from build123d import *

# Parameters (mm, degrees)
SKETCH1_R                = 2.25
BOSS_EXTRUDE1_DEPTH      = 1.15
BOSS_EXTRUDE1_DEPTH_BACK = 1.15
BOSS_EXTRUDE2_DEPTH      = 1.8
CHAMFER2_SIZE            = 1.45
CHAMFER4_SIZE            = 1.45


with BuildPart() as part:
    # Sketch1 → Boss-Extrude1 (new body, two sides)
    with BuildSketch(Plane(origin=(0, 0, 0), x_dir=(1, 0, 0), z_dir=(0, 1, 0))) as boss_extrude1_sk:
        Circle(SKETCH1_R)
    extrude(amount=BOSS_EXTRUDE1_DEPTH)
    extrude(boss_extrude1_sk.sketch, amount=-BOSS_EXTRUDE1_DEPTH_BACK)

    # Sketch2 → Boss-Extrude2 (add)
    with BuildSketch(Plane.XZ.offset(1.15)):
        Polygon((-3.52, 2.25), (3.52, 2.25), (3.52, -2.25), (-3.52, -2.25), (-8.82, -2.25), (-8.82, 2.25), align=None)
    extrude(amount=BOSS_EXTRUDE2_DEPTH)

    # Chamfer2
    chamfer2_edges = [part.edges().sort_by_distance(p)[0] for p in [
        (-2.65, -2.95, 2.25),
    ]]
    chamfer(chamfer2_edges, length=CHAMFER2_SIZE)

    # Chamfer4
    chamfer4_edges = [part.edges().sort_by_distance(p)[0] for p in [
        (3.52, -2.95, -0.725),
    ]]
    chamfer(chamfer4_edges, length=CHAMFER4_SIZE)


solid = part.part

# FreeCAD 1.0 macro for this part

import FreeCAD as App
import Part
import Sketcher
Q = App.Units.Quantity


def edges_at(feature, points):
    """Names of the edges that pass closest to the given points."""
    edges = feature.Shape.Edges
    near = lambda p: min(range(len(edges)), key=lambda i: edges[i].distToShape(Part.Vertex(*p))[0])
    return sorted({f"Edge{near(p) + 1}" for p in points})


def add_polygon(sketch, points):
    """Adds a closed chain of lines whose ends are joined by coincident constraints."""
    first, n = sketch.GeometryCount, len(points)
    for a, b in zip(points, points[1:] + points[:1]):
        sketch.addGeometry(Part.LineSegment(App.Vector(*a, 0), App.Vector(*b, 0)), False)
    for i in range(n):
        sketch.addConstraint(Sketcher.Constraint("Coincident", first + i, 2, first + (i + 1) % n, 1))

doc = App.newDocument("Part")
body = doc.addObject("PartDesign::Body", "Body")

# Sketch on XZ plane
sketch1 = body.newObject("Sketcher::SketchObject", "Sketch")
sketch1.AttachmentSupport = (doc.getObject("XZ_Plane"), [""])
sketch1.MapMode = "FlatFace"
sketch1.addGeometry(Part.Circle(App.Vector(0, 0, 0), App.Vector(0, 0, 1), 2.2), False)
sketch1.addConstraint(Sketcher.Constraint("Coincident", 0, 3, -1, 1))
sketch1.addConstraint(Sketcher.Constraint("Diameter", 0, Q("4.5 mm")))
pad1 = body.newObject("PartDesign::Pad", "Pad")
pad1.Profile = sketch1
pad1.Type = "TwoLengths"
pad1.Length = 1.15
pad1.Length2 = 1.15
pad1.Reversed = True

# Sketch on XZ plane
sketch2 = body.newObject("Sketcher::SketchObject", "Sketch001")
sketch2.AttachmentSupport = (doc.getObject("XZ_Plane"), [""])
sketch2.MapMode = "FlatFace"
sketch2.AttachmentOffset = App.Placement(App.Vector(0, 0, 1.15), App.Rotation())
add_polygon(sketch2, [(3.5, 2.2), (-8.8, 2.2), (-8.8, -2.2), (3.5, -2.2)])  # lines 0-3
sketch2.addConstraint(Sketcher.Constraint("Horizontal", 0))
sketch2.addConstraint(Sketcher.Constraint("Vertical", 1))
sketch2.addConstraint(Sketcher.Constraint("Horizontal", 2))
sketch2.addConstraint(Sketcher.Constraint("Vertical", 3))
sketch2.addConstraint(Sketcher.Constraint("DistanceY", 1, 2, 1, 1, Q("4.5 mm")))
sketch2.addConstraint(Sketcher.Constraint("DistanceX", 0, 2, 0, 1, Q("12.34 mm")))
sketch2.addConstraint(Sketcher.Constraint("DistanceX", 0, 2, -1, 1, Q("8.82 mm")))
sketch2.addConstraint(Sketcher.Constraint("DistanceY", -1, 1, 0, 2, Q("2.25 mm")))
pad2 = body.newObject("PartDesign::Pad", "Pad001")
pad2.Profile = sketch2
pad2.Length = 1.8
doc.recompute()

chamfer = body.newObject("PartDesign::Chamfer", "Chamfer")
chamfer.Base = (pad2, edges_at(pad2, [(-2.65, -2.95, 2.25)]))
chamfer.Size = 1.45
doc.recompute()

chamfer2 = body.newObject("PartDesign::Chamfer", "Chamfer001")
chamfer2.Base = (chamfer, edges_at(chamfer, [(3.52, -2.95, -0.725)]))
chamfer2.Size = 1.45

doc.recompute()
